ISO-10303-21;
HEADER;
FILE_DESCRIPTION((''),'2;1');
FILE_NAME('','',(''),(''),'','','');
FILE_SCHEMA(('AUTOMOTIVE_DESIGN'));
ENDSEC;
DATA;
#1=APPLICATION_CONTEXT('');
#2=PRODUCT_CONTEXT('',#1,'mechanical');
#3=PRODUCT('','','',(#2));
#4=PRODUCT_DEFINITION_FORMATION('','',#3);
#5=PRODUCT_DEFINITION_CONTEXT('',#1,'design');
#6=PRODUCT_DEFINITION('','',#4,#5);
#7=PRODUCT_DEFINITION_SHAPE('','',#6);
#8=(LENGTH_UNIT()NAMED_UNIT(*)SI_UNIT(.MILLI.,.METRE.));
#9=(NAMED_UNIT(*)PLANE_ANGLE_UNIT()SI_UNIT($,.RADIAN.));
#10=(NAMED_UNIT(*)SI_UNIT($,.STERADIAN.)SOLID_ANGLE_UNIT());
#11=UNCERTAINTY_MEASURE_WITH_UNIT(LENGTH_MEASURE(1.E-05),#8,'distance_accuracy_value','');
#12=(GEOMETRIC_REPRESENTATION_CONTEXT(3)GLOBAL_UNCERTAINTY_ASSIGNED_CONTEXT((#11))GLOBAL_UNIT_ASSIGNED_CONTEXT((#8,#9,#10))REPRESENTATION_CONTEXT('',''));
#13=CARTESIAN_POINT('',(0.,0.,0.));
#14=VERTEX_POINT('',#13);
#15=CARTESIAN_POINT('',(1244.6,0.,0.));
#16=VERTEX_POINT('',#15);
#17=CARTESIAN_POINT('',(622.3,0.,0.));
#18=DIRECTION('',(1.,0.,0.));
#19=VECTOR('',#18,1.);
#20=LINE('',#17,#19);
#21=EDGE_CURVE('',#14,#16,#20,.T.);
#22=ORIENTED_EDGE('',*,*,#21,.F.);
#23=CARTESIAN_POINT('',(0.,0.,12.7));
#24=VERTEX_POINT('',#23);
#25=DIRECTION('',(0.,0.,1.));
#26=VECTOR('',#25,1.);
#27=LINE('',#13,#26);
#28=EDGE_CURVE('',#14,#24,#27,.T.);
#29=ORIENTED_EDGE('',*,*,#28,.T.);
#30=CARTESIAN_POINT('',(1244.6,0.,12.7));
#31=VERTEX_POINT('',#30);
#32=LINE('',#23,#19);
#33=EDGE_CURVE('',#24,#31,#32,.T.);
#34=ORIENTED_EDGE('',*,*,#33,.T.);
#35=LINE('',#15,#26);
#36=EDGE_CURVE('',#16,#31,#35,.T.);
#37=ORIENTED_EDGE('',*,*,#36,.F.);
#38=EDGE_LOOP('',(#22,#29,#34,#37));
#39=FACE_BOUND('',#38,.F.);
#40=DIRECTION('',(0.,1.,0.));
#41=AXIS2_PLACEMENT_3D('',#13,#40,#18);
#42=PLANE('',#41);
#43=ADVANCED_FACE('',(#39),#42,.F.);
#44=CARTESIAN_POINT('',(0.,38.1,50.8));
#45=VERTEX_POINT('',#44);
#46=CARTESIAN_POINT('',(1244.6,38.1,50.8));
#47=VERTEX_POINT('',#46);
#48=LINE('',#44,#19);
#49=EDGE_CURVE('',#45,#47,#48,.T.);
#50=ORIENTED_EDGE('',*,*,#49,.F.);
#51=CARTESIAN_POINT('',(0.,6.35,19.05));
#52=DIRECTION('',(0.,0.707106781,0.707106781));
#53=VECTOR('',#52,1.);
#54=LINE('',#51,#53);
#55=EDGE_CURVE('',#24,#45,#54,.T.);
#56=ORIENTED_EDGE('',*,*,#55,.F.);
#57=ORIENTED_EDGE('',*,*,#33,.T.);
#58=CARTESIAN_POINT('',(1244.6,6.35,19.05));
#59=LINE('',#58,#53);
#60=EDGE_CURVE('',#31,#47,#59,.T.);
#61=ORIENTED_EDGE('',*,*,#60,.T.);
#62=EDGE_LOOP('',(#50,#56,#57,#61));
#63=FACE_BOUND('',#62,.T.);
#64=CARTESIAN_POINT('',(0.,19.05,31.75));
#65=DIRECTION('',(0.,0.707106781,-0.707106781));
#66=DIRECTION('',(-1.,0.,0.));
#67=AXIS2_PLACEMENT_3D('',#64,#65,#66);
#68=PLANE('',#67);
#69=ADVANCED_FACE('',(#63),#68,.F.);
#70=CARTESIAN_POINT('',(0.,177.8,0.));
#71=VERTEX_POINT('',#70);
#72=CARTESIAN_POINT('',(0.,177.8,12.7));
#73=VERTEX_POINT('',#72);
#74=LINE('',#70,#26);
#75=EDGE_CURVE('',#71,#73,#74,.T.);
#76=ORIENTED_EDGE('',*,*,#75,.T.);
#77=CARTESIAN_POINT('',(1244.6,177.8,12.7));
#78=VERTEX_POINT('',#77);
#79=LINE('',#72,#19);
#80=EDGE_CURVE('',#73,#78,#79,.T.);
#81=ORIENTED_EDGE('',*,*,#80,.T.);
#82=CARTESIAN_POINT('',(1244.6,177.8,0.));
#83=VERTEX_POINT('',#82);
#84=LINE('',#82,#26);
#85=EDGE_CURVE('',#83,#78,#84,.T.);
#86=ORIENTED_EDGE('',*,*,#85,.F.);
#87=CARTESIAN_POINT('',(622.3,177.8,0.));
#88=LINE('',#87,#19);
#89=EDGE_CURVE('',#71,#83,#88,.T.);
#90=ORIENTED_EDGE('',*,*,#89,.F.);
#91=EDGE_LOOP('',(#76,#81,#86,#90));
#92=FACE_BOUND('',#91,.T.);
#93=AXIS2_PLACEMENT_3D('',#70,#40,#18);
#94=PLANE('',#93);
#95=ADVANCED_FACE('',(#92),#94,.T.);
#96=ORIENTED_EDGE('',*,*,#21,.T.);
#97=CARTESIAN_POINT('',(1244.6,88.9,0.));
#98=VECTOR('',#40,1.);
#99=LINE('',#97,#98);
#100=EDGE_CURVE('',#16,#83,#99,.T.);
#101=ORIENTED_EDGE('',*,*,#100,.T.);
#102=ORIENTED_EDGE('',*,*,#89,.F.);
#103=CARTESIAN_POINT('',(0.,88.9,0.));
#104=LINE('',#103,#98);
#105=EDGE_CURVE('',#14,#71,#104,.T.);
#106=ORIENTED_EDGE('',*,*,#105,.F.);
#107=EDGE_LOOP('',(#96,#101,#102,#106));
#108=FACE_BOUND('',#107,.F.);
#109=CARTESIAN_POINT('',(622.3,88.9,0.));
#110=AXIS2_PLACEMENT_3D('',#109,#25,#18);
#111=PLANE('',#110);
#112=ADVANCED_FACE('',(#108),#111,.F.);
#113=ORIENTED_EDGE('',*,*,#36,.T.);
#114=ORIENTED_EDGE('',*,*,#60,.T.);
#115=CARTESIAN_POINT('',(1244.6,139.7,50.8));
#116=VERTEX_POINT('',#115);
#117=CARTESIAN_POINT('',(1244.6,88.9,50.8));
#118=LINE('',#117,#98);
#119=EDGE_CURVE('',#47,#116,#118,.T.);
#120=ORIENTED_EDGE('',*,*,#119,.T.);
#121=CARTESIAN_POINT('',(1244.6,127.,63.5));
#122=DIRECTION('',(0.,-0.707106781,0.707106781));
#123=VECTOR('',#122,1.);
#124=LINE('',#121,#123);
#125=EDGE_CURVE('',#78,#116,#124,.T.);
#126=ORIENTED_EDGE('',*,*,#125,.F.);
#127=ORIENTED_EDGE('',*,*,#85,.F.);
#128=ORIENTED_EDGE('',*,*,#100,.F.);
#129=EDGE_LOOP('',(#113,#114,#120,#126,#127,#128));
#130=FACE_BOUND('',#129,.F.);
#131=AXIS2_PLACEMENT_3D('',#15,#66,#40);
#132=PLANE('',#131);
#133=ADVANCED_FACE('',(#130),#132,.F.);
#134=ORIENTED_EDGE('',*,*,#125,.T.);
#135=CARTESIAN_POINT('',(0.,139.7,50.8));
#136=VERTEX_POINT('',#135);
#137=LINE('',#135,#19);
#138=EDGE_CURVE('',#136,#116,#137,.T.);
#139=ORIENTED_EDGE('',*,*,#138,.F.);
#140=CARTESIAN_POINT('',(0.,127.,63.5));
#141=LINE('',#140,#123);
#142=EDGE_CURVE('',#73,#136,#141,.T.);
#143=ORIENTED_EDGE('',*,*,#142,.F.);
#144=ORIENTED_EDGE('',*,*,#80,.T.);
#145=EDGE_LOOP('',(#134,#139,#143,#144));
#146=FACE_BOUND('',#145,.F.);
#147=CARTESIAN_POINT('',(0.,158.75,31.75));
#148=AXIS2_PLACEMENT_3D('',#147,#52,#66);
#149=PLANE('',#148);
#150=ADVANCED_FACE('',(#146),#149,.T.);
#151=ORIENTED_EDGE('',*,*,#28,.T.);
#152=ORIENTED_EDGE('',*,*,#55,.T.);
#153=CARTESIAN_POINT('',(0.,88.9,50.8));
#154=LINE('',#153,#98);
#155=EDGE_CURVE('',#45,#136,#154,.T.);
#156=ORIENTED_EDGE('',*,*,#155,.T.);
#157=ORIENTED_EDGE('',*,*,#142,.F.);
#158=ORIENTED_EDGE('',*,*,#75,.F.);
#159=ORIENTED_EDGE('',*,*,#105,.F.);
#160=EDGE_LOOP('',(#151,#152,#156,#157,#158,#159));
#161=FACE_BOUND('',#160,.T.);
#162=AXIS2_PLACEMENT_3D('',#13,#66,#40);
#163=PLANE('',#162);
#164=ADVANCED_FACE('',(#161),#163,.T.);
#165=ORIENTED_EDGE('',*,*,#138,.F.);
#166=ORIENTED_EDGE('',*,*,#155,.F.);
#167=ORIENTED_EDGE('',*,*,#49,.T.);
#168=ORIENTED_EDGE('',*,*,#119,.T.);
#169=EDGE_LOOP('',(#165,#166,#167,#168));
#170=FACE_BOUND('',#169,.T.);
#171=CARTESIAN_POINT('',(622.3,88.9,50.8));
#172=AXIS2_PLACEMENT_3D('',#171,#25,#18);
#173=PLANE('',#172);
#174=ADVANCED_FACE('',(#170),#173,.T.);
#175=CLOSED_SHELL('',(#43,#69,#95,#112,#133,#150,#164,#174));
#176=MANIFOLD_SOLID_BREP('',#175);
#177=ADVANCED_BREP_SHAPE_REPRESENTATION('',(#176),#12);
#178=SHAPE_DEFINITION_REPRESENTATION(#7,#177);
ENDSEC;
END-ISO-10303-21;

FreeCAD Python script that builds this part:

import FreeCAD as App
import Part
import Sketcher
from FreeCAD import Vector
Q = App.Units.Quantity


def edges_at(feature, points):
    """Names of the edges that pass closest to the given points."""
    edges = feature.Shape.Edges
    near = lambda p: min(range(len(edges)), key=lambda i: edges[i].distToShape(Part.Vertex(*p))[0])
    return sorted({f"Edge{near(p) + 1}" for p in points})


def add_polygon(sketch, points):
    """Adds a closed chain of lines whose ends are joined by coincident constraints."""
    first, n = sketch.GeometryCount, len(points)
    for a, b in zip(points, points[1:] + points[:1]):
        sketch.addGeometry(Part.LineSegment(App.Vector(*a, 0), App.Vector(*b, 0)), False)
    for i in range(n):
        sketch.addConstraint(Sketcher.Constraint("Coincident", first + i, 2, first + (i + 1) % n, 1))

doc = App.newDocument("Part")
body = doc.addObject("PartDesign::Body", "Body")

sketch1 = body.newObject("Sketcher::SketchObject", "Sketch")
sketch1.AttachmentSupport = (doc.getObject("XY_Plane"), [""])
sketch1.MapMode = "FlatFace"
add_polygon(sketch1, [(0, 177.8), (0, 0), (1244.6, 0), (1244.6, 177.8)])
sketch1.addConstraint([
    Sketcher.Constraint("Vertical", 0),
    Sketcher.Constraint("Horizontal", 1),
    Sketcher.Constraint("Vertical", 2),
    Sketcher.Constraint("Horizontal", 3),
    Sketcher.Constraint("Coincident", 0, 2, -1, 1),
    Sketcher.Constraint("DistanceX", 1, 1, 1, 2, Q("49 in")),
    Sketcher.Constraint("DistanceY", 0, 2, 0, 1, Q("7 in")),
])
pad1 = body.newObject("PartDesign::Pad", "Pad")
pad1.Profile = sketch1
pad1.Length = Q("2 in")
doc.recompute()

chamfer = body.newObject("PartDesign::Chamfer", "Chamfer")
chamfer.Base = (pad1, edges_at(pad1, [(622.3, 0, 50.8), (622.3, 177.8, 50.8)]))
chamfer.ChamferType = "Two distances"
chamfer.Size = Q("1.5 in")
chamfer.Size2 = Q("1.5 in")

doc.recompute()
